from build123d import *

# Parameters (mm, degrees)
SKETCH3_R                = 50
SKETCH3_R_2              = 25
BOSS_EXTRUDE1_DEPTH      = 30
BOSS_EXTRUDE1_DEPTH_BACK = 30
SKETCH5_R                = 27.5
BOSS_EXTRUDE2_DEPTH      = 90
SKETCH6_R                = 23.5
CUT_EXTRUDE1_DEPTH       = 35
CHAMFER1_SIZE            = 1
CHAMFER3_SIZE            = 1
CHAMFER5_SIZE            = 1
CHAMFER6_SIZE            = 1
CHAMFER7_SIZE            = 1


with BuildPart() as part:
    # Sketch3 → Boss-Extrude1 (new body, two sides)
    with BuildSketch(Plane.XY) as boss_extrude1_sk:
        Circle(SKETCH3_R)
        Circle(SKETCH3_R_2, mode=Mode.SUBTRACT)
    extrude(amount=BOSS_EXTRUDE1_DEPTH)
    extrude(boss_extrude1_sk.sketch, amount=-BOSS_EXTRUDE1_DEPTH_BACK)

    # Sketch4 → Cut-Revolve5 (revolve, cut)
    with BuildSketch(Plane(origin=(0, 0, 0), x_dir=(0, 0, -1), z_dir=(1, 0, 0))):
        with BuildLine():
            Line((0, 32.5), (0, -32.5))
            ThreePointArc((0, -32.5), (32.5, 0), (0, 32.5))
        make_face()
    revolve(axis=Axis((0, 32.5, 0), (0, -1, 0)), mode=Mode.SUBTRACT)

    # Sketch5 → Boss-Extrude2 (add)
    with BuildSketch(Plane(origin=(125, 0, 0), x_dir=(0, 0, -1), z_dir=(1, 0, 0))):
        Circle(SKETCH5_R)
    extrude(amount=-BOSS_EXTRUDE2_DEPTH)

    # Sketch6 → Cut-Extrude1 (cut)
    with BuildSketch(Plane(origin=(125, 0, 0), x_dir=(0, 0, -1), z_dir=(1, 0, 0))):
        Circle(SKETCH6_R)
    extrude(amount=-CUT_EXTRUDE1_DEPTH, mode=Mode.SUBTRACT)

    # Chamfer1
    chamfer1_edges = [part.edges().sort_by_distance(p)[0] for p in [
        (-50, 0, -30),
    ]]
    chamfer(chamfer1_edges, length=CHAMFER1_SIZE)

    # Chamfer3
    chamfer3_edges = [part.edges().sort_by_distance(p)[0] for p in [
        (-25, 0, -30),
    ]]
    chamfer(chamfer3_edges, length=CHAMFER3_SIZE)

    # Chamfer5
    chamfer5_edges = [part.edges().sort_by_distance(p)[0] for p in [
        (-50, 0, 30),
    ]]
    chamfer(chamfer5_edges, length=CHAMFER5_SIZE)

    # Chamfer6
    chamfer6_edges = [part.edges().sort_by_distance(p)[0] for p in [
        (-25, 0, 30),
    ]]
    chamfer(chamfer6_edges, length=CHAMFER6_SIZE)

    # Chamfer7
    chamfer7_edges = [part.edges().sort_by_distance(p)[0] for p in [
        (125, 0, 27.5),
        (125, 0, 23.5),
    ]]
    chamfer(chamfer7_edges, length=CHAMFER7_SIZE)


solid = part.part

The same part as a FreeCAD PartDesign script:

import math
import FreeCAD as App
import Part
import Sketcher
from FreeCAD import Vector
Q = App.Units.Quantity


def edges_at(feature, points):
    """Names of the edges that pass closest to the given points."""
    edges = feature.Shape.Edges
    near = lambda p: min(range(len(edges)), key=lambda i: edges[i].distToShape(Part.Vertex(*p))[0])
    return sorted({f"Edge{near(p) + 1}" for p in points})

doc = App.newDocument("Part")
body = doc.addObject("PartDesign::Body", "Body")

# Sketch on XY plane
sketch1 = doc.addObject("Sketcher::SketchObject", "Sketch")
body.addObject(sketch1)
sketch1.AttachmentSupport = (doc.XY_Plane, [""])
sketch1.MapMode = "FlatFace"
sketch1.addGeometry(Part.Circle(Vector(0, 0, 0), Vector(0, 0, 1), 50), False)
sketch1.addGeometry(Part.Circle(Vector(0, 0, 0), Vector(0, 0, 1), 25), False)
sketch1.addConstraint(Sketcher.Constraint("Coincident", 0, 3, -1, 1))
sketch1.addConstraint(Sketcher.Constraint("Coincident", 1, 3, -1, 1))
sketch1.addConstraint(Sketcher.Constraint("Diameter", 0, Q("100 mm")))
sketch1.addConstraint(Sketcher.Constraint("Diameter", 1, Q("50 mm")))
pad1 = doc.addObject("PartDesign::Pad", "Pad")
body.addObject(pad1)
pad1.Profile = sketch1
pad1.Type = "TwoLengths"
pad1.Length = 30
pad1.Length2 = 30

# Sketch on YZ plane
sketch2 = doc.addObject("Sketcher::SketchObject", "Sketch001")
body.addObject(sketch2)
sketch2.AttachmentSupport = (doc.YZ_Plane, [""])
sketch2.MapMode = "FlatFace"
sketch2.addGeometry(Part.LineSegment(Vector(32, 0, 0), Vector(-32, 0, 0)), False)
sketch2.addGeometry(Part.ArcOfCircle(Part.Circle(Vector(0, 0, 0), Vector(0, 0, 1), 32), math.radians(180), math.radians(360)), False)
sketch2.addConstraint(Sketcher.Constraint("Coincident", 0, 1, 1, 2))
sketch2.addConstraint(Sketcher.Constraint("Coincident", 1, 1, 0, 2))
sketch2.addConstraint(Sketcher.Constraint("Horizontal", 0))
sketch2.addConstraint(Sketcher.Constraint("Coincident", 1, 3, -1, 1))
sketch2.addConstraint(Sketcher.Constraint("PointOnObject", 0, 1, -1))
sketch2.addConstraint(Sketcher.Constraint("Radius", 1, Q("32.5 mm")))
groove = doc.addObject("PartDesign::Groove", "Groove")
body.addObject(groove)
groove.Profile = sketch2
groove.ReferenceAxis = (sketch2, ["H_Axis"])
groove.Angle = 360

# Sketch on YZ plane
sketch3 = doc.addObject("Sketcher::SketchObject", "Sketch002")
body.addObject(sketch3)
sketch3.AttachmentSupport = (doc.YZ_Plane, [""])
sketch3.MapMode = "FlatFace"
sketch3.AttachmentOffset = App.Placement(Vector(0, 0, 125), App.Rotation())
sketch3.addGeometry(Part.Circle(Vector(0, 0, 0), Vector(0, 0, 1), 28), False)
sketch3.addConstraint(Sketcher.Constraint("Coincident", 0, 3, -1, 1))
sketch3.addConstraint(Sketcher.Constraint("Diameter", 0, Q("55 mm")))
pad2 = doc.addObject("PartDesign::Pad", "Pad001")
body.addObject(pad2)
pad2.Profile = sketch3
pad2.Length = 90
pad2.Reversed = True

# Sketch on YZ plane
sketch4 = doc.addObject("Sketcher::SketchObject", "Sketch003")
body.addObject(sketch4)
sketch4.AttachmentSupport = (doc.YZ_Plane, [""])
sketch4.MapMode = "FlatFace"
sketch4.AttachmentOffset = App.Placement(Vector(0, 0, 125), App.Rotation())
sketch4.addGeometry(Part.Circle(Vector(0, 0, 0), Vector(0, 0, 1), 24), False)
sketch4.addConstraint(Sketcher.Constraint("Coincident", 0, 3, -1, 1))
sketch4.addConstraint(Sketcher.Constraint("Diameter", 0, Q("47 mm")))
pocket1 = doc.addObject("PartDesign::Pocket", "Pocket")
body.addObject(pocket1)
pocket1.Profile = sketch4
pocket1.Length = 35
doc.recompute()

chamfer = doc.addObject("PartDesign::Chamfer", "Chamfer")
body.addObject(chamfer)
chamfer.Base = (pocket1, edges_at(pocket1, [(-50, 0, -30)]))
chamfer.Size = 1
doc.recompute()

chamfer2 = doc.addObject("PartDesign::Chamfer", "Chamfer001")
body.addObject(chamfer2)
chamfer2.Base = (chamfer, edges_at(chamfer, [(-25, 0, -30)]))
chamfer2.Size = 1
doc.recompute()

chamfer3 = doc.addObject("PartDesign::Chamfer", "Chamfer002")
body.addObject(chamfer3)
chamfer3.Base = (chamfer2, edges_at(chamfer2, [(-50, 0, 30)]))
chamfer3.Size = 1
doc.recompute()

chamfer4 = doc.addObject("PartDesign::Chamfer", "Chamfer003")
body.addObject(chamfer4)
chamfer4.Base = (chamfer3, edges_at(chamfer3, [(-25, 0, 30)]))
chamfer4.Size = 1
doc.recompute()

chamfer5 = doc.addObject("PartDesign::Chamfer", "Chamfer004")
body.addObject(chamfer5)
chamfer5.Base = (chamfer4, edges_at(chamfer4, [(125, 0, 27.5), (125, 0, 23.5)]))
chamfer5.Size = 1

doc.recompute()
